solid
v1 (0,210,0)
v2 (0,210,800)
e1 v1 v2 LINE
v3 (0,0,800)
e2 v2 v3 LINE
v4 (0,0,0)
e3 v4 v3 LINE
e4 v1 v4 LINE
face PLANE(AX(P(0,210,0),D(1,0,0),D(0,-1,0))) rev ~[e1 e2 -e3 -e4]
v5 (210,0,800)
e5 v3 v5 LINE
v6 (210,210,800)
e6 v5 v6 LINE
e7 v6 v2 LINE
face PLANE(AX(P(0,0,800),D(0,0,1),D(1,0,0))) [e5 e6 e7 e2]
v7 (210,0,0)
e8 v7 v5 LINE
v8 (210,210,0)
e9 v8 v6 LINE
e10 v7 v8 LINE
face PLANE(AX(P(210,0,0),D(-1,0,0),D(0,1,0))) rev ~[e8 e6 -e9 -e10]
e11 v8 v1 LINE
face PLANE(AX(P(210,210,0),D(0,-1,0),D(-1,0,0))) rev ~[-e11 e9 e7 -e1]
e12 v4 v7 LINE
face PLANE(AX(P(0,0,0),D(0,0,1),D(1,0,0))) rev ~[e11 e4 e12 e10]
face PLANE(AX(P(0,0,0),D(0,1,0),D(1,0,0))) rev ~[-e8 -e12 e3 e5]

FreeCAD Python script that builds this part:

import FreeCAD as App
import Part
import Sketcher
from FreeCAD import Vector

doc = App.newDocument("Part")
body = doc.addObject("PartDesign::Body", "Body")

# Sketch on XY plane
sketch1 = body.newObject("Sketcher::SketchObject", "Sketch")
sketch1.AttachmentSupport = (doc.getObject("XY_Plane"), [""])
sketch1.MapMode = "FlatFace"
sketch1.addGeometry([
    Part.LineSegment(Vector(0, 210, 0), Vector(0, 0, 0)),
    Part.LineSegment(Vector(0, 0, 0), Vector(210, 0, 0)),
    Part.LineSegment(Vector(210, 0, 0), Vector(210, 210, 0)),
    Part.LineSegment(Vector(210, 210, 0), Vector(0, 210, 0)),
], False)
sketch1.addConstraint([
    Sketcher.Constraint("Coincident", 0, 2, 1, 1),
    Sketcher.Constraint("Coincident", 1, 2, 2, 1),
    Sketcher.Constraint("Coincident", 2, 2, 3, 1),
    Sketcher.Constraint("Coincident", 3, 2, 0, 1),
    Sketcher.Constraint("Vertical", 0),
    Sketcher.Constraint("Horizontal", 1),
    Sketcher.Constraint("Vertical", 2),
    Sketcher.Constraint("Horizontal", 3),
    Sketcher.Constraint("Coincident", 0, 2, -1, 1),
    Sketcher.Constraint("Equal", 3, 0),
    Sketcher.Constraint("DistanceX", 1, 1, 1, 2, 210.0),
])
pad1 = body.newObject("PartDesign::Pad", "Pad")
pad1.Profile = sketch1
pad1.Length = 800

doc.recompute()
